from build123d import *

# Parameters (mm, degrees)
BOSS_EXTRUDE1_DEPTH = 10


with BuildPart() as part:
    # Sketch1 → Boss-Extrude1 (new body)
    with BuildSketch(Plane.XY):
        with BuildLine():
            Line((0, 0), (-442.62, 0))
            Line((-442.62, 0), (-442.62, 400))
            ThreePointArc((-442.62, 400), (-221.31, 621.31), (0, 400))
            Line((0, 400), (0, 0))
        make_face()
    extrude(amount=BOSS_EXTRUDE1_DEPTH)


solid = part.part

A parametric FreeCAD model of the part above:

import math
import FreeCAD as App
import Part
import Sketcher

doc = App.newDocument("Part")
body = doc.addObject("PartDesign::Body", "Body")

# Sketch on XY plane
sketch1 = body.newObject("Sketcher::SketchObject", "Sketch")
sketch1.AttachmentSupport = (doc.getObject("XY_Plane"), [""])
sketch1.MapMode = "FlatFace"
sketch1.addGeometry(Part.LineSegment(App.Vector(-443, 0, 0), App.Vector(0, 0, 0)), False)
sketch1.addGeometry(Part.LineSegment(App.Vector(0, 0, 0), App.Vector(0, 400, 0)), False)
sketch1.addGeometry(Part.ArcOfCircle(Part.Circle(App.Vector(-221, 400, 0), App.Vector(0, 0, 1), 221), math.radians(0), math.radians(180)), False)
sketch1.addGeometry(Part.LineSegment(App.Vector(-443, 400, 0), App.Vector(-443, 0, 0)), False)
sketch1.addConstraint(Sketcher.Constraint("Coincident", 0, 2, 1, 1))
sketch1.addConstraint(Sketcher.Constraint("Tangent", 1, 2, 2, 1))
sketch1.addConstraint(Sketcher.Constraint("Tangent", 2, 2, 3, 1))
sketch1.addConstraint(Sketcher.Constraint("Coincident", 3, 2, 0, 1))
sketch1.addConstraint(Sketcher.Constraint("Horizontal", 0))
sketch1.addConstraint(Sketcher.Constraint("Vertical", 1))
sketch1.addConstraint(Sketcher.Constraint("Vertical", 3))
sketch1.addConstraint(Sketcher.Constraint("Coincident", 0, 2, -1, 1))
sketch1.addConstraint(Sketcher.Constraint("DistanceY", 1, 1, 1, 2, 400.0))
sketch1.addConstraint(Sketcher.Constraint("Radius", 2, 221.31))
pad1 = body.newObject("PartDesign::Pad", "Pad")
pad1.Profile = sketch1
pad1.Length = 10

doc.recompute()
